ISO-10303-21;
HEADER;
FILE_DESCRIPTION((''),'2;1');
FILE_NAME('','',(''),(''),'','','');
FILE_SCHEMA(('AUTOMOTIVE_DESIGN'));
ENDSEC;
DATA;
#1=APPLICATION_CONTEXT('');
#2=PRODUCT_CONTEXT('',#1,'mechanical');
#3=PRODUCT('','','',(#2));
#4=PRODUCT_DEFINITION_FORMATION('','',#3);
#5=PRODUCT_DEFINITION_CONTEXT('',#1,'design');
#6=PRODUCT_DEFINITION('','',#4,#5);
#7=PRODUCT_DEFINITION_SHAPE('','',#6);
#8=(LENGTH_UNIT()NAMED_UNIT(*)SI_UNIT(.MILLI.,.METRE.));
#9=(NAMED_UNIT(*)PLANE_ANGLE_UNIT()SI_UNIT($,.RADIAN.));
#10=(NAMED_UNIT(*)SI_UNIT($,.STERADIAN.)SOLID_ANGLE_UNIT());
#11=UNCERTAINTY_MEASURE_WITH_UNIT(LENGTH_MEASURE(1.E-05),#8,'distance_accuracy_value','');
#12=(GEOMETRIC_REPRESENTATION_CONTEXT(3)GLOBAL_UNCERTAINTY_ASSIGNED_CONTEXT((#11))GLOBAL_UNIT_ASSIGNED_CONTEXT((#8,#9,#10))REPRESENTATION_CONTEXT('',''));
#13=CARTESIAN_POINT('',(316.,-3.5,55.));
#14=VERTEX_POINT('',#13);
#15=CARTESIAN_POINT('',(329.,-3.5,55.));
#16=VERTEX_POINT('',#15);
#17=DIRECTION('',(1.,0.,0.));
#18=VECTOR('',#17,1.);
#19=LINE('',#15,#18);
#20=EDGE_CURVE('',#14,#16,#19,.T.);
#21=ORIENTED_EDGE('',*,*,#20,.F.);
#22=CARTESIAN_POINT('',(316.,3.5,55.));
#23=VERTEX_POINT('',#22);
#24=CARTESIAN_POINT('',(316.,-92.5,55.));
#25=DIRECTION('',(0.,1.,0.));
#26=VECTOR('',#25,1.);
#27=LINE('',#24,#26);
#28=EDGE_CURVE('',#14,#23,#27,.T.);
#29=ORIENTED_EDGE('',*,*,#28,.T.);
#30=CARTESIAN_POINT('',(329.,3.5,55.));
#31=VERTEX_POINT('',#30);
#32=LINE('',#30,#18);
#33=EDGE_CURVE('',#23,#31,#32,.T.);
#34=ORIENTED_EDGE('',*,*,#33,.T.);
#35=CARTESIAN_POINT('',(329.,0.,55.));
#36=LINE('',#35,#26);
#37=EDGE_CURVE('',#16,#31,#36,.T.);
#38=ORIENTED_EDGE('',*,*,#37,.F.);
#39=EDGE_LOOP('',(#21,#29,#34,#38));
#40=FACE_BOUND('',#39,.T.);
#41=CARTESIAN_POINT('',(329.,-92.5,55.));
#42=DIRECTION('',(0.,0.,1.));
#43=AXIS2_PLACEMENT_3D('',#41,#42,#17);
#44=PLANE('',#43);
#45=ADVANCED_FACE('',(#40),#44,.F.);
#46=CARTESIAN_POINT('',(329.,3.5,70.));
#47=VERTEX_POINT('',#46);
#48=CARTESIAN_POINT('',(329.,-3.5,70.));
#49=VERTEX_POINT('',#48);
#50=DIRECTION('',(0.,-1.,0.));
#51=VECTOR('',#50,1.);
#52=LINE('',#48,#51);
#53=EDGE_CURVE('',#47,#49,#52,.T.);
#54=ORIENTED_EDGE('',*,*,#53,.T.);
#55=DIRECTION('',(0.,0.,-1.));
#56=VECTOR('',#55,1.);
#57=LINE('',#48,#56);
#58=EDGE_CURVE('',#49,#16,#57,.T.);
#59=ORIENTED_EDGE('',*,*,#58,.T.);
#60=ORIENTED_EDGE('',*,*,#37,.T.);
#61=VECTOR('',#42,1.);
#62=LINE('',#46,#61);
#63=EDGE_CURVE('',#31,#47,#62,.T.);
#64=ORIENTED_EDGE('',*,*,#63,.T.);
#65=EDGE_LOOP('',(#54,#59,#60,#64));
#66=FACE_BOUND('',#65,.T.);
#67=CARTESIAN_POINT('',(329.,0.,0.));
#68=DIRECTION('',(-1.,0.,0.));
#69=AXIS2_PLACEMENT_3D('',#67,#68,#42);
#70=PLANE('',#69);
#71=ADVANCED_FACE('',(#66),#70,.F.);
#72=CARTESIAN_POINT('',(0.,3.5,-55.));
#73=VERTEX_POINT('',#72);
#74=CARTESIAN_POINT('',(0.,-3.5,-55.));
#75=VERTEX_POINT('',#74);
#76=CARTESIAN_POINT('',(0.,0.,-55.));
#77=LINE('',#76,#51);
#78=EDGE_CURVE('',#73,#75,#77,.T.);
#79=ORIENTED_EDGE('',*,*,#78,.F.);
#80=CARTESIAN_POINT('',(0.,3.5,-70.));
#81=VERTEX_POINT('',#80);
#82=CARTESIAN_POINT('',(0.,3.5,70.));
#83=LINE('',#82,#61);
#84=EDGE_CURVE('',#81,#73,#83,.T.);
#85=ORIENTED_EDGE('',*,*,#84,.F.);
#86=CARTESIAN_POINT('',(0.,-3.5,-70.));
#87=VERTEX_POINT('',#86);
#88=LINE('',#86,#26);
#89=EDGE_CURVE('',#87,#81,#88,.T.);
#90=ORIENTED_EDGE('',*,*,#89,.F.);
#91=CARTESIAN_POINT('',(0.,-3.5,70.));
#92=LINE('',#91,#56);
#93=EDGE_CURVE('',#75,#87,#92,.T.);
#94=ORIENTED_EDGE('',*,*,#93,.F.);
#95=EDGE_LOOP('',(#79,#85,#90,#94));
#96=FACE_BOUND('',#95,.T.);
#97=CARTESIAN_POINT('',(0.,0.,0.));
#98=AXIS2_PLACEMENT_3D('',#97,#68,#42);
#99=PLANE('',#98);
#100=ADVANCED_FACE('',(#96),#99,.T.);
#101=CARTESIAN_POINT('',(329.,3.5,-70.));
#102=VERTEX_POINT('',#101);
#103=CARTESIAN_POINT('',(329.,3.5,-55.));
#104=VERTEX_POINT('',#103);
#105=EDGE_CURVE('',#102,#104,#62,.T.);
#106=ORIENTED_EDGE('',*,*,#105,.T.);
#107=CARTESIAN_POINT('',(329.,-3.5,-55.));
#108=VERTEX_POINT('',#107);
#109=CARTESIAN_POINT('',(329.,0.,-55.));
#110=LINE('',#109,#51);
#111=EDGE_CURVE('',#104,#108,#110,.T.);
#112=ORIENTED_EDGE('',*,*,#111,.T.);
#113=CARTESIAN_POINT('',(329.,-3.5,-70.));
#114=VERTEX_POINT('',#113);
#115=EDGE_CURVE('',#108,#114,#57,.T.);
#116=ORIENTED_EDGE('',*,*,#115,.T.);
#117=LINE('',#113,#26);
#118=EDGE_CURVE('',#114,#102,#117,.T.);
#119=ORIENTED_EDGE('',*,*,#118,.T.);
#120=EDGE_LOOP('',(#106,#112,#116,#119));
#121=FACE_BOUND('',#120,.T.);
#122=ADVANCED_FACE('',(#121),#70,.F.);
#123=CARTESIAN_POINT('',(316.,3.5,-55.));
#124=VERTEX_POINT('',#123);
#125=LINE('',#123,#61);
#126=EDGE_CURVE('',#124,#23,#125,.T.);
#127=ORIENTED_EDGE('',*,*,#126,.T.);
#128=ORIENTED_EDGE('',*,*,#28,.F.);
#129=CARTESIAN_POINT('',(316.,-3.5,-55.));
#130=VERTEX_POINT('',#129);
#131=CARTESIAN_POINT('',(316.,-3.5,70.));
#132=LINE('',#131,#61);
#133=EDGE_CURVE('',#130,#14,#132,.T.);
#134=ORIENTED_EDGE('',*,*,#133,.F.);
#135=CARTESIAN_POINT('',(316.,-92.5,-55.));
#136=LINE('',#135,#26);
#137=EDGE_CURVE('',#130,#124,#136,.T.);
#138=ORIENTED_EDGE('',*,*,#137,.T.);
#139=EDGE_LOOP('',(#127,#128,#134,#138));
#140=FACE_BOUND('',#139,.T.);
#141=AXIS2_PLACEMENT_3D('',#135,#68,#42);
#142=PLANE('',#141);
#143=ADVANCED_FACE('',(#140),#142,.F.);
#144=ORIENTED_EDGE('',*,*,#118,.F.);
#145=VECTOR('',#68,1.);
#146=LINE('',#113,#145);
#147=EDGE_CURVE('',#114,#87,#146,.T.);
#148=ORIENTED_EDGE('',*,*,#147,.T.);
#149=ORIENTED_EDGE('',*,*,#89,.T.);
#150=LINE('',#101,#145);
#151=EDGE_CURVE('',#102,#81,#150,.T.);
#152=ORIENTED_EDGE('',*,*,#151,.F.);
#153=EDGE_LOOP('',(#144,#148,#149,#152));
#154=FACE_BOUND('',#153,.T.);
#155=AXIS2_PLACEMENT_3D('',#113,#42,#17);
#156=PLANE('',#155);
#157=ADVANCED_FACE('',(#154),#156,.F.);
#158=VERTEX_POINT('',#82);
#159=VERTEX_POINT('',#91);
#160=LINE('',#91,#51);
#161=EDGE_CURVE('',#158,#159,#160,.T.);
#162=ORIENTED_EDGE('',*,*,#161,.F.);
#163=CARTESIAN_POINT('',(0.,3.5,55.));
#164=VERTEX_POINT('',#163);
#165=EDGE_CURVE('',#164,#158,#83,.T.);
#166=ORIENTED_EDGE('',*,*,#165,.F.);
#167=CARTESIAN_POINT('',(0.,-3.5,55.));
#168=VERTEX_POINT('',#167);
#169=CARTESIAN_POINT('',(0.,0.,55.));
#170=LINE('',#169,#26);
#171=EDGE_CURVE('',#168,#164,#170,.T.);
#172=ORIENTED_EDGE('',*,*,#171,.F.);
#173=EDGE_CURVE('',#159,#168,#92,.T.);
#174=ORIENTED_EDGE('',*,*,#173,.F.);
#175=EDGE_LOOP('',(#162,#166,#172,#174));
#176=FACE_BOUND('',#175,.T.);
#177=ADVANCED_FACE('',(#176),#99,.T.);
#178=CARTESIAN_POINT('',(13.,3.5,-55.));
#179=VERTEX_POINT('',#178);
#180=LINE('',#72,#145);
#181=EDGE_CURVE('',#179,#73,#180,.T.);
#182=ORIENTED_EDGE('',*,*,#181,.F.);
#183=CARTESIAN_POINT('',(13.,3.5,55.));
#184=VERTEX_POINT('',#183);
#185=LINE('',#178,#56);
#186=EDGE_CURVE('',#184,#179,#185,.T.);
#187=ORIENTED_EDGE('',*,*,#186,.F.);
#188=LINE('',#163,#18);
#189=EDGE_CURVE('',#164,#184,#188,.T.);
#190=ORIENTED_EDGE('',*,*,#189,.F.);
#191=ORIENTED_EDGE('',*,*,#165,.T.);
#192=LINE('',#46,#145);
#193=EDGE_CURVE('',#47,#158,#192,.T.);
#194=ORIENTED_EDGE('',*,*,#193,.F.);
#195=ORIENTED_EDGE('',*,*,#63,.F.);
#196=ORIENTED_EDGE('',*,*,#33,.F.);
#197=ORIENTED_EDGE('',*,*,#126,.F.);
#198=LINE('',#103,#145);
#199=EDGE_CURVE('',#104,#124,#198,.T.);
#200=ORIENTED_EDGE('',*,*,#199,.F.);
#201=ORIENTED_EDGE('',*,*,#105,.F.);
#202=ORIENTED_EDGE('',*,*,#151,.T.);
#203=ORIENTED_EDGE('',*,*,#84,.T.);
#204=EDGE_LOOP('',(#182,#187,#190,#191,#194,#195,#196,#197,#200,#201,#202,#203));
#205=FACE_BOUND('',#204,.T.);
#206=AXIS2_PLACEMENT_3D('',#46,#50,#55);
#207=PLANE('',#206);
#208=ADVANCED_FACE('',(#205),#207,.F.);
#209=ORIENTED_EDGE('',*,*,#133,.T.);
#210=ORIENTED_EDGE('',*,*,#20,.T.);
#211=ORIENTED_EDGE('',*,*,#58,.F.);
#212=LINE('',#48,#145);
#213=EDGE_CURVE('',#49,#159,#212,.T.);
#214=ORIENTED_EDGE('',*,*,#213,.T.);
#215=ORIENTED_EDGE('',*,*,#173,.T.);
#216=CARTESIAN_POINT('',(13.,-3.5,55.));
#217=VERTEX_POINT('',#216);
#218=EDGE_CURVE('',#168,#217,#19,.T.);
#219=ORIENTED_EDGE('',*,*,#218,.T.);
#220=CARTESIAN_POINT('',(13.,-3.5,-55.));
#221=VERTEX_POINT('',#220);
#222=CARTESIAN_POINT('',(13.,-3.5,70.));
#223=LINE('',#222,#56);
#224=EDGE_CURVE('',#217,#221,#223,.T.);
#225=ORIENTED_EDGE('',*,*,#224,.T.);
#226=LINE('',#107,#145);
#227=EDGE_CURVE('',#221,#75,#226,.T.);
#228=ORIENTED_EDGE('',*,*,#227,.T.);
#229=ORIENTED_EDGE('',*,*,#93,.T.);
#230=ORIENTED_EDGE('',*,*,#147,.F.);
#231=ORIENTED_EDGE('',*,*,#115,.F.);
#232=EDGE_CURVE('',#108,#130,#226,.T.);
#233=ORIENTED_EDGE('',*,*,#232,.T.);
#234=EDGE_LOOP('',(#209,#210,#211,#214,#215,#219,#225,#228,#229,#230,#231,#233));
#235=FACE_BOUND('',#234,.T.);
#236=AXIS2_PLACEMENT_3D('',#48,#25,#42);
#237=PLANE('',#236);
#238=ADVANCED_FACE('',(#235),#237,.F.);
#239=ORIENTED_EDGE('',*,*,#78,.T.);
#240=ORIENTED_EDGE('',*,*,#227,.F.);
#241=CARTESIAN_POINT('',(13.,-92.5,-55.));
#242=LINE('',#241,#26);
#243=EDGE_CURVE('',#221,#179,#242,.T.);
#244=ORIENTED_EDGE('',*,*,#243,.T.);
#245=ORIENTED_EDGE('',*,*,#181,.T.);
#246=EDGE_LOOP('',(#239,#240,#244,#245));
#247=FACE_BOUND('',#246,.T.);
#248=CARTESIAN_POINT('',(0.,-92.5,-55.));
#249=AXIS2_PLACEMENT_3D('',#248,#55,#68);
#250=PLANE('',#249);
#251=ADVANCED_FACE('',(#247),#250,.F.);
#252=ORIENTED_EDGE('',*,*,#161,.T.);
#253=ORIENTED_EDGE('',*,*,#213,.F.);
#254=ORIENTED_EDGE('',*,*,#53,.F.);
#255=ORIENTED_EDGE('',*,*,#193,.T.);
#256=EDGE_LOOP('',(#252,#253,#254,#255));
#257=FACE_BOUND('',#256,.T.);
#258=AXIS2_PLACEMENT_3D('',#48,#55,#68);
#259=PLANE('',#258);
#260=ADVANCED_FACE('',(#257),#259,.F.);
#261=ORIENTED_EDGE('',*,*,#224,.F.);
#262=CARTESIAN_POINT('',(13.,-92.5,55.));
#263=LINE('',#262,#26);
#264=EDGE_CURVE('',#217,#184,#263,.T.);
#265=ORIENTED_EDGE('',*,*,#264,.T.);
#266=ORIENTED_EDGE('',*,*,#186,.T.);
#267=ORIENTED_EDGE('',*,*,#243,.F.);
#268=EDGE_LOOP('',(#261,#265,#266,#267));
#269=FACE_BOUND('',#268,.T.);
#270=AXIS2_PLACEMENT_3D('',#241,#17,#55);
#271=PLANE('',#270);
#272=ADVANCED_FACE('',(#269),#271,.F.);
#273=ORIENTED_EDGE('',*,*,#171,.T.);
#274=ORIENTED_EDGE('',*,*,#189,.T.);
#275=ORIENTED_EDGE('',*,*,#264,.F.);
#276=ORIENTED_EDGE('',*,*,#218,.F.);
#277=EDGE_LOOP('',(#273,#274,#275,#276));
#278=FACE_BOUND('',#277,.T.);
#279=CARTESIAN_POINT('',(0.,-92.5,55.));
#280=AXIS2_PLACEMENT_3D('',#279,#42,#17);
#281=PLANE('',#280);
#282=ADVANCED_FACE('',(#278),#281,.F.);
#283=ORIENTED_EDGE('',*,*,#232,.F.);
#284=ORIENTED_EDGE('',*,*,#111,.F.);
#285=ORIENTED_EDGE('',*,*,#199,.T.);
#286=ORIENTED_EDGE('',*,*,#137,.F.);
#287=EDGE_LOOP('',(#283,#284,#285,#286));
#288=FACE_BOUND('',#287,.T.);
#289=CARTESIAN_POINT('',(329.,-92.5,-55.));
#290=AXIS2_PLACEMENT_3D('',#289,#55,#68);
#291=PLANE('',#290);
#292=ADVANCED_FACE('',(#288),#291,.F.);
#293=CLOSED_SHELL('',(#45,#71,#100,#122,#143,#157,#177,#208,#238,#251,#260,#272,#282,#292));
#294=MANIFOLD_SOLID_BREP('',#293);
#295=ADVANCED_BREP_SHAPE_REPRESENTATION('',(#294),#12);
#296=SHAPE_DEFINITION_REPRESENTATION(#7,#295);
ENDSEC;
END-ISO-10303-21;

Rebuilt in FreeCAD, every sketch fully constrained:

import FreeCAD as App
import Part
import Sketcher

V = App.Vector
Q = App.Units.Quantity

doc = App.newDocument("Part")
body = doc.addObject("PartDesign::Body", "Body")

# Sketch on YZ plane
sketch1 = body.newObject("Sketcher::SketchObject", "Sketch")
sketch1.AttachmentSupport = (doc.getObject("YZ_Plane"), [""])
sketch1.MapMode = "FlatFace"
sketch1.addGeometry(Part.LineSegment(V(4, 70, 0), V(-4, 70, 0)), False)
sketch1.addGeometry(Part.LineSegment(V(-4, 70, 0), V(-4, -70, 0)), False)
sketch1.addGeometry(Part.LineSegment(V(-4, -70, 0), V(4, -70, 0)), False)
sketch1.addGeometry(Part.LineSegment(V(4, -70, 0), V(4, 70, 0)), False)
sketch1.addConstraint(Sketcher.Constraint("Coincident", 0, 2, 1, 1))
sketch1.addConstraint(Sketcher.Constraint("Coincident", 1, 2, 2, 1))
sketch1.addConstraint(Sketcher.Constraint("Coincident", 2, 2, 3, 1))
sketch1.addConstraint(Sketcher.Constraint("Coincident", 3, 2, 0, 1))
sketch1.addConstraint(Sketcher.Constraint("Horizontal", 0))
sketch1.addConstraint(Sketcher.Constraint("Vertical", 1))
sketch1.addConstraint(Sketcher.Constraint("Horizontal", 2))
sketch1.addConstraint(Sketcher.Constraint("Vertical", 3))
sketch1.addConstraint(Sketcher.Constraint("Symmetric", 0, 2, 2, 2, -1, 1))
sketch1.addConstraint(Sketcher.Constraint("DistanceX", 0, 2, 0, 1, Q("7 mm")))
sketch1.addConstraint(Sketcher.Constraint("DistanceY", 1, 2, 1, 1, Q("140 mm")))
pad1 = body.newObject("PartDesign::Pad", "Pad")
pad1.Profile = sketch1
pad1.Length = 329

# Sketch on XZ plane
sketch2 = body.newObject("Sketcher::SketchObject", "Sketch001")
sketch2.AttachmentSupport = (doc.getObject("XZ_Plane"), [""])
sketch2.MapMode = "FlatFace"
sketch2.AttachmentOffset = App.Placement(V(0, 0, -3.5), App.Rotation())
sketch2.addGeometry(Part.LineSegment(V(13, -122, 0), V(13, 122, 0)), False)
sketch2.addGeometry(Part.LineSegment(V(13, 122, 0), V(316, 122, 0)), False)
sketch2.addGeometry(Part.LineSegment(V(316, 122, 0), V(316, -122, 0)), False)
sketch2.addGeometry(Part.LineSegment(V(316, -122, 0), V(13, -122, 0)), False)
sketch2.addConstraint(Sketcher.Constraint("Coincident", 0, 2, 1, 1))
sketch2.addConstraint(Sketcher.Constraint("Coincident", 1, 2, 2, 1))
sketch2.addConstraint(Sketcher.Constraint("Coincident", 2, 2, 3, 1))
sketch2.addConstraint(Sketcher.Constraint("Coincident", 3, 2, 0, 1))
sketch2.addConstraint(Sketcher.Constraint("Vertical", 0))
sketch2.addConstraint(Sketcher.Constraint("Horizontal", 1))
sketch2.addConstraint(Sketcher.Constraint("Vertical", 2))
sketch2.addConstraint(Sketcher.Constraint("Horizontal", 3))
sketch2.addConstraint(Sketcher.Constraint("DistanceX", 1, 1, 1, 2, Q("303 mm")))
sketch2.addConstraint(Sketcher.Constraint("DistanceX", -1, 1, 0, 2, Q("13 mm")))
sketch2.addConstraint(Sketcher.Constraint("DistanceY", 0, 1, 0, 2, Q("244.18 mm")))
sketch2.addConstraint(Sketcher.Constraint("DistanceY", -1, 1, 0, 2, Q("122.09 mm")))
pad2 = body.newObject("PartDesign::Pad", "Pad001")
pad2.Profile = sketch2
pad2.Length = 7

# Sketch on XZ plane
sketch3 = body.newObject("Sketcher::SketchObject", "Sketch002")
sketch3.AttachmentSupport = (doc.getObject("XZ_Plane"), [""])
sketch3.MapMode = "FlatFace"
sketch3.AttachmentOffset = App.Placement(V(0, 0, -3.5), App.Rotation())
sketch3.addGeometry(Part.LineSegment(V(0, -55, 0), V(0, 55, 0)), False)
sketch3.addGeometry(Part.LineSegment(V(0, 55, 0), V(13, 55, 0)), False)
sketch3.addGeometry(Part.LineSegment(V(13, 55, 0), V(13, -55, 0)), False)
sketch3.addGeometry(Part.LineSegment(V(13, -55, 0), V(0, -55, 0)), False)
sketch3.addGeometry(Part.LineSegment(V(316, -55, 0), V(316, 55, 0)), False)
sketch3.addGeometry(Part.LineSegment(V(316, 55, 0), V(329, 55, 0)), False)
sketch3.addGeometry(Part.LineSegment(V(329, 55, 0), V(329, -55, 0)), False)
sketch3.addGeometry(Part.LineSegment(V(329, -55, 0), V(316, -55, 0)), False)
sketch3.addConstraint(Sketcher.Constraint("Coincident", 0, 2, 1, 1))
sketch3.addConstraint(Sketcher.Constraint("Coincident", 1, 2, 2, 1))
sketch3.addConstraint(Sketcher.Constraint("Coincident", 2, 2, 3, 1))
sketch3.addConstraint(Sketcher.Constraint("Coincident", 3, 2, 0, 1))
sketch3.addConstraint(Sketcher.Constraint("Coincident", 4, 2, 5, 1))
sketch3.addConstraint(Sketcher.Constraint("Coincident", 5, 2, 6, 1))
sketch3.addConstraint(Sketcher.Constraint("Coincident", 6, 2, 7, 1))
sketch3.addConstraint(Sketcher.Constraint("Coincident", 7, 2, 4, 1))
sketch3.addConstraint(Sketcher.Constraint("Vertical", 0))
sketch3.addConstraint(Sketcher.Constraint("Horizontal", 1))
sketch3.addConstraint(Sketcher.Constraint("Vertical", 2))
sketch3.addConstraint(Sketcher.Constraint("Horizontal", 3))
sketch3.addConstraint(Sketcher.Constraint("Vertical", 4))
sketch3.addConstraint(Sketcher.Constraint("Horizontal", 5))
sketch3.addConstraint(Sketcher.Constraint("Vertical", 6))
sketch3.addConstraint(Sketcher.Constraint("Horizontal", 7))
sketch3.addConstraint(Sketcher.Constraint("Symmetric", 0, 2, 3, 2, -1, 1))
sketch3.addConstraint(Sketcher.Constraint("Horizontal", 1, 2, 4, 2))
sketch3.addConstraint(Sketcher.Constraint("Horizontal", 3, 2, 6, 2))
sketch3.addConstraint(Sketcher.Constraint("Equal", 3, 5))
sketch3.addConstraint(Sketcher.Constraint("DistanceX", 1, 1, 1, 2, Q("13 mm")))
sketch3.addConstraint(Sketcher.Constraint("DistanceY", 0, 1, 0, 2, Q("110 mm")))
sketch3.addConstraint(Sketcher.Constraint("DistanceX", -1, 1, 4, 2, Q("316 mm")))
pocket1 = body.newObject("PartDesign::Pocket", "Pocket")
pocket1.Profile = sketch3
pocket1.Length = 96
pocket1.Reversed = True

# Sketch on XZ plane
sketch4 = body.newObject("Sketcher::SketchObject", "Sketch003")
sketch4.AttachmentSupport = (doc.getObject("XZ_Plane"), [""])
sketch4.MapMode = "FlatFace"
sketch4.AttachmentOffset = App.Placement(V(0, 0, -3.5), App.Rotation())
sketch4.addGeometry(Part.LineSegment(V(13, -70, 0), V(316, -70, 0)), False)
sketch4.addGeometry(Part.LineSegment(V(316, -70, 0), V(319, -132, 0)), False)
sketch4.addGeometry(Part.LineSegment(V(319, -132, 0), V(0, -132, 0)), False)
sketch4.addGeometry(Part.LineSegment(V(0, -132, 0), V(13, -70, 0)), False)
sketch4.addGeometry(Part.LineSegment(V(316, 70, 0), V(13, 70, 0)), False)
sketch4.addGeometry(Part.LineSegment(V(13, 70, 0), V(0, 142, 0)), False)
sketch4.addGeometry(Part.LineSegment(V(0, 142, 0), V(321, 131, 0)), False)
sketch4.addGeometry(Part.LineSegment(V(321, 131, 0), V(316, 70, 0)), False)
sketch4.addConstraint(Sketcher.Constraint("Coincident", 0, 2, 1, 1))
sketch4.addConstraint(Sketcher.Constraint("Coincident", 1, 2, 2, 1))
sketch4.addConstraint(Sketcher.Constraint("Coincident", 2, 2, 3, 1))
sketch4.addConstraint(Sketcher.Constraint("Coincident", 3, 2, 0, 1))
sketch4.addConstraint(Sketcher.Constraint("Coincident", 4, 2, 5, 1))
sketch4.addConstraint(Sketcher.Constraint("Coincident", 5, 2, 6, 1))
sketch4.addConstraint(Sketcher.Constraint("Coincident", 6, 2, 7, 1))
sketch4.addConstraint(Sketcher.Constraint("Coincident", 7, 2, 4, 1))
sketch4.addConstraint(Sketcher.Constraint("Horizontal", 0))
sketch4.addConstraint(Sketcher.Constraint("Horizontal", 2))
sketch4.addConstraint(Sketcher.Constraint("Horizontal", 4))
sketch4.addConstraint(Sketcher.Constraint("Symmetric", 3, 2, 4, 2, -1))
sketch4.addConstraint(Sketcher.Constraint("PointOnObject", 2, 2, -2))
sketch4.addConstraint(Sketcher.Constraint("PointOnObject", 5, 2, -2))
sketch4.addConstraint(Sketcher.Constraint("Vertical", 0, 2, 7, 2))
sketch4.addConstraint(Sketcher.Constraint("DistanceX", 0, 1, 0, 2, Q("303 mm")))
sketch4.addConstraint(Sketcher.Constraint("DistanceX", -1, 1, 0, 2, Q("316 mm")))
sketch4.addConstraint(Sketcher.Constraint("DistanceY", 0, 2, -1, 1, Q("70 mm")))
sketch4.addConstraint(Sketcher.Constraint("Distance", 5, Q("73.57388 mm")))
sketch4.addConstraint(Sketcher.Constraint("Distance", 7, Q("60.894321 mm")))
sketch4.addConstraint(Sketcher.Constraint("DistanceX", 2, 2, 2, 1, Q("318.765325 mm")))
sketch4.addConstraint(Sketcher.Constraint("DistanceY", 1, 2, -1, 1, Q("132.447129 mm")))
sketch4.addConstraint(Sketcher.Constraint("DistanceX", -1, 1, 6, 2, Q("321.25761 mm")))
pocket2 = body.newObject("PartDesign::Pocket", "Pocket001")
pocket2.Profile = sketch4
pocket2.Length = 96
pocket2.Reversed = True

doc.recompute()
